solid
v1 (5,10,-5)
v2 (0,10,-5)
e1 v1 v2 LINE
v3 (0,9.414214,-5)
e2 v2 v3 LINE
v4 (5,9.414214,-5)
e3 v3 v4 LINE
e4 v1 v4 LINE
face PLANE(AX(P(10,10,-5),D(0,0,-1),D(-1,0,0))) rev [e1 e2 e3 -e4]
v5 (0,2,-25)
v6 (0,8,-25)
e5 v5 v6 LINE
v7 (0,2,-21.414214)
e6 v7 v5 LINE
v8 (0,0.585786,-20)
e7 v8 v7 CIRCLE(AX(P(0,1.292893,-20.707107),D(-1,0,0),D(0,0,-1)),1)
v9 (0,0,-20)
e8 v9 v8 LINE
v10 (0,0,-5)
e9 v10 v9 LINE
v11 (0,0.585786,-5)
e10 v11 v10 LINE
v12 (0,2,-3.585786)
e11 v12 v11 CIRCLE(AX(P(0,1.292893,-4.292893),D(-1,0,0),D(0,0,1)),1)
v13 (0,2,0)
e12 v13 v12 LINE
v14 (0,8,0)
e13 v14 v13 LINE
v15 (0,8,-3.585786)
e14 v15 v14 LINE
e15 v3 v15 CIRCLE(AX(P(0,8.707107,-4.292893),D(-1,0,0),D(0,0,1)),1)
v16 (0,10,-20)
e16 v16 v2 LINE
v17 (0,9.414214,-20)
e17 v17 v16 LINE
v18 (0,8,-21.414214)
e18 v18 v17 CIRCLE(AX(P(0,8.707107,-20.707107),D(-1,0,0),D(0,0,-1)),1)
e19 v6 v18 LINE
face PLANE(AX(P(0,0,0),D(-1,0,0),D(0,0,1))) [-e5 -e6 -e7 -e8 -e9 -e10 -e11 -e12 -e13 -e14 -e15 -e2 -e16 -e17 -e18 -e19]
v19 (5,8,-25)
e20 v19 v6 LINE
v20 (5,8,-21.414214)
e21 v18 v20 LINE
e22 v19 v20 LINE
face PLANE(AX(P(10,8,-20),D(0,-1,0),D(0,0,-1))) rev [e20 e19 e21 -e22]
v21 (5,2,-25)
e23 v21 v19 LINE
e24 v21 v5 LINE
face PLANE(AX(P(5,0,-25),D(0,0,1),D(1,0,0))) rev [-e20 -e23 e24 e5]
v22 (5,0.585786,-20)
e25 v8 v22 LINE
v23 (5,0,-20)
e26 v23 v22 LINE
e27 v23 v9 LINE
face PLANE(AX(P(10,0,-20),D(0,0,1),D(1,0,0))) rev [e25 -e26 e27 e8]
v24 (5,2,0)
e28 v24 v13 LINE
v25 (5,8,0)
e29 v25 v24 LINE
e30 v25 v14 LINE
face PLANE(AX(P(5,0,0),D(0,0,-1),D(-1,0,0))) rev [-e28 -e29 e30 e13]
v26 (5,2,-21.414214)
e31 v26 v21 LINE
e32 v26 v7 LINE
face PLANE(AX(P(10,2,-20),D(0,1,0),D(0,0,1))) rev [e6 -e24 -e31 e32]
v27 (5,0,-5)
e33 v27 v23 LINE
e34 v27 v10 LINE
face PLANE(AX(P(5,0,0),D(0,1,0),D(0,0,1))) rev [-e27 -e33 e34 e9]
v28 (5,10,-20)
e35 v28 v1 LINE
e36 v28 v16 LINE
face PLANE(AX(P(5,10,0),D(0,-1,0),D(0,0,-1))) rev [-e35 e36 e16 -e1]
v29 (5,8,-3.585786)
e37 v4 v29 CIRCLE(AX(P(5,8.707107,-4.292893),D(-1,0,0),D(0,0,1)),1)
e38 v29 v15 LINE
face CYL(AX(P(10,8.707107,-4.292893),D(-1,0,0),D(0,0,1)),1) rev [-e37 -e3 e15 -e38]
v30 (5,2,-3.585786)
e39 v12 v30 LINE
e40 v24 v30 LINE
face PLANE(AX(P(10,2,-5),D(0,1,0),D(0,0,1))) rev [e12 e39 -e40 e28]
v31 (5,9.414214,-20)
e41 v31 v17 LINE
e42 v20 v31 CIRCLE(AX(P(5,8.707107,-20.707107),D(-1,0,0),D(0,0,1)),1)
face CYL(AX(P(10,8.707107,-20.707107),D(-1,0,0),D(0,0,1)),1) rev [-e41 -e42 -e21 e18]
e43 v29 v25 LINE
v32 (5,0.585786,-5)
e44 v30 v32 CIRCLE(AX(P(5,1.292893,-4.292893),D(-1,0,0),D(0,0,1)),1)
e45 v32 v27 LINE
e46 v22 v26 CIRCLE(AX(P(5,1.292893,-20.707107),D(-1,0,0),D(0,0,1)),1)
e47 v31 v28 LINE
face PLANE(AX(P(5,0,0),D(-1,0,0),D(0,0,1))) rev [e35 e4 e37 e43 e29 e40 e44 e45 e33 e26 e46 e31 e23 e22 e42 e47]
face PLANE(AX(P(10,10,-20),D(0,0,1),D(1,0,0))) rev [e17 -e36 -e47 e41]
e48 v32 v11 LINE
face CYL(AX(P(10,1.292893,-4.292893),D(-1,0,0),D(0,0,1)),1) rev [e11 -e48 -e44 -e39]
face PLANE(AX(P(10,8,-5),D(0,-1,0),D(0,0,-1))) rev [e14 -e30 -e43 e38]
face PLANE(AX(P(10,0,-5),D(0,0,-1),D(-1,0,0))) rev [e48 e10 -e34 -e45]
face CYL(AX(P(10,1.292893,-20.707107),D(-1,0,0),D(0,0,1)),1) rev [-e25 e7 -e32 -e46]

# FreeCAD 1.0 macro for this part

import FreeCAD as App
import Part
import Sketcher

V = App.Vector
Q = App.Units.Quantity

doc = App.newDocument("Part")
params = doc.addObject("Spreadsheet::Sheet", "Params")
for row, (alias, value) in enumerate([
    ("sketch1_width", "10 mm"),
    ("sketch1_height", "25 mm"),
    ("pad1_length", "5 mm"),
    ("sketch2_width", "2 mm"),
    ("sketch2_height", "5 mm"),
    ("pocket1_length", "10 mm"),
    ("sketch3_diameter", "2 mm"),
    ("pocket2_length", "10 mm"),
], start=1):
    params.set(f"A{row}", alias)
    params.set(f"B{row}", "=" + value)
    params.setAlias(f"B{row}", alias)

body = doc.addObject("PartDesign::Body", "Body")

# Sketch on YZ plane
sketch1 = body.newObject("Sketcher::SketchObject", "Sketch")
sketch1.AttachmentSupport = (doc.getObject("YZ_Plane"), [""])
sketch1.MapMode = "FlatFace"
sketch1.addGeometry(Part.LineSegment(V(10, 0, 0), V(0, 0, 0)), False)
sketch1.addGeometry(Part.LineSegment(V(0, 0, 0), V(0, -25, 0)), False)
sketch1.addGeometry(Part.LineSegment(V(0, -25, 0), V(10, -25, 0)), False)
sketch1.addGeometry(Part.LineSegment(V(10, -25, 0), V(10, 0, 0)), False)
sketch1.addConstraint(Sketcher.Constraint("Coincident", 0, 2, 1, 1))
sketch1.addConstraint(Sketcher.Constraint("Coincident", 1, 2, 2, 1))
sketch1.addConstraint(Sketcher.Constraint("Coincident", 2, 2, 3, 1))
sketch1.addConstraint(Sketcher.Constraint("Coincident", 3, 2, 0, 1))
sketch1.addConstraint(Sketcher.Constraint("Horizontal", 0))
sketch1.addConstraint(Sketcher.Constraint("Vertical", 1))
sketch1.addConstraint(Sketcher.Constraint("Horizontal", 2))
sketch1.addConstraint(Sketcher.Constraint("Vertical", 3))
sketch1.addConstraint(Sketcher.Constraint("Coincident", 0, 2, -1, 1))
sketch1.addConstraint(Sketcher.Constraint("DistanceX", 0, 2, 0, 1, Q("10 mm")))
sketch1.addConstraint(Sketcher.Constraint("DistanceY", 1, 2, 1, 1, Q("25 mm")))
sketch1.setExpression("Constraints[9]", "Params.sketch1_width")
sketch1.setExpression("Constraints[10]", "Params.sketch1_height")
pad1 = body.newObject("PartDesign::Pad", "Pad")
pad1.Profile = sketch1
pad1.setExpression("Length", "Params.pad1_length")

# Sketch on YZ plane
sketch2 = body.newObject("Sketcher::SketchObject", "Sketch001")
sketch2.AttachmentSupport = (doc.getObject("YZ_Plane"), [""])
sketch2.MapMode = "FlatFace"
sketch2.addGeometry(Part.LineSegment(V(2, -5, 0), V(0, -5, 0)), False)
sketch2.addGeometry(Part.LineSegment(V(0, -5, 0), V(0, 0, 0)), False)
sketch2.addGeometry(Part.LineSegment(V(0, 0, 0), V(2, 0, 0)), False)
sketch2.addGeometry(Part.LineSegment(V(2, 0, 0), V(2, -5, 0)), False)
sketch2.addGeometry(Part.LineSegment(V(10, -5, 0), V(8, -5, 0)), False)
sketch2.addGeometry(Part.LineSegment(V(8, -5, 0), V(8, 0, 0)), False)
sketch2.addGeometry(Part.LineSegment(V(8, 0, 0), V(10, 0, 0)), False)
sketch2.addGeometry(Part.LineSegment(V(10, 0, 0), V(10, -5, 0)), False)
sketch2.addGeometry(Part.LineSegment(V(10, -25, 0), V(8, -25, 0)), False)
sketch2.addGeometry(Part.LineSegment(V(8, -25, 0), V(8, -20, 0)), False)
sketch2.addGeometry(Part.LineSegment(V(8, -20, 0), V(10, -20, 0)), False)
sketch2.addGeometry(Part.LineSegment(V(10, -20, 0), V(10, -25, 0)), False)
sketch2.addGeometry(Part.LineSegment(V(2, -25, 0), V(0, -25, 0)), False)
sketch2.addGeometry(Part.LineSegment(V(0, -25, 0), V(0, -20, 0)), False)
sketch2.addGeometry(Part.LineSegment(V(0, -20, 0), V(2, -20, 0)), False)
sketch2.addGeometry(Part.LineSegment(V(2, -20, 0), V(2, -25, 0)), False)
sketch2.addConstraint(Sketcher.Constraint("Coincident", 0, 2, 1, 1))
sketch2.addConstraint(Sketcher.Constraint("Coincident", 1, 2, 2, 1))
sketch2.addConstraint(Sketcher.Constraint("Coincident", 2, 2, 3, 1))
sketch2.addConstraint(Sketcher.Constraint("Coincident", 3, 2, 0, 1))
sketch2.addConstraint(Sketcher.Constraint("Coincident", 4, 2, 5, 1))
sketch2.addConstraint(Sketcher.Constraint("Coincident", 5, 2, 6, 1))
sketch2.addConstraint(Sketcher.Constraint("Coincident", 6, 2, 7, 1))
sketch2.addConstraint(Sketcher.Constraint("Coincident", 7, 2, 4, 1))
sketch2.addConstraint(Sketcher.Constraint("Coincident", 8, 2, 9, 1))
sketch2.addConstraint(Sketcher.Constraint("Coincident", 9, 2, 10, 1))
sketch2.addConstraint(Sketcher.Constraint("Coincident", 10, 2, 11, 1))
sketch2.addConstraint(Sketcher.Constraint("Coincident", 11, 2, 8, 1))
sketch2.addConstraint(Sketcher.Constraint("Coincident", 12, 2, 13, 1))
sketch2.addConstraint(Sketcher.Constraint("Coincident", 13, 2, 14, 1))
sketch2.addConstraint(Sketcher.Constraint("Coincident", 14, 2, 15, 1))
sketch2.addConstraint(Sketcher.Constraint("Coincident", 15, 2, 12, 1))
sketch2.addConstraint(Sketcher.Constraint("Horizontal", 0))
sketch2.addConstraint(Sketcher.Constraint("Vertical", 1))
sketch2.addConstraint(Sketcher.Constraint("Horizontal", 2))
sketch2.addConstraint(Sketcher.Constraint("Vertical", 3))
sketch2.addConstraint(Sketcher.Constraint("Horizontal", 4))
sketch2.addConstraint(Sketcher.Constraint("Vertical", 5))
sketch2.addConstraint(Sketcher.Constraint("Horizontal", 6))
sketch2.addConstraint(Sketcher.Constraint("Vertical", 7))
sketch2.addConstraint(Sketcher.Constraint("Horizontal", 8))
sketch2.addConstraint(Sketcher.Constraint("Vertical", 9))
sketch2.addConstraint(Sketcher.Constraint("Horizontal", 10))
sketch2.addConstraint(Sketcher.Constraint("Vertical", 11))
sketch2.addConstraint(Sketcher.Constraint("Horizontal", 12))
sketch2.addConstraint(Sketcher.Constraint("Vertical", 13))
sketch2.addConstraint(Sketcher.Constraint("Horizontal", 14))
sketch2.addConstraint(Sketcher.Constraint("Vertical", 15))
sketch2.addConstraint(Sketcher.Constraint("Coincident", 1, 2, -1, 1))
sketch2.addConstraint(Sketcher.Constraint("PointOnObject", 5, 2, -1))
sketch2.addConstraint(Sketcher.Constraint("PointOnObject", 12, 2, -2))
sketch2.addConstraint(Sketcher.Constraint("Horizontal", 3, 2, 4, 2))
sketch2.addConstraint(Sketcher.Constraint("Horizontal", 11, 2, 12, 2))
sketch2.addConstraint(Sketcher.Constraint("Horizontal", 10, 2, 13, 2))
sketch2.addConstraint(Sketcher.Constraint("Vertical", 5, 2, 8, 2))
sketch2.addConstraint(Sketcher.Constraint("Vertical", 7, 2, 10, 2))
sketch2.addConstraint(Sketcher.Constraint("Vertical", 3, 2, 14, 2))
sketch2.addConstraint(Sketcher.Constraint("Equal", 2, 4))
sketch2.addConstraint(Sketcher.Constraint("Equal", 7, 9))
sketch2.addConstraint(Sketcher.Constraint("DistanceX", 0, 2, 0, 1, Q("2 mm")))
sketch2.addConstraint(Sketcher.Constraint("DistanceY", 1, 1, 1, 2, Q("5 mm")))
sketch2.addConstraint(Sketcher.Constraint("DistanceX", -1, 1, 4, 2, Q("8 mm")))
sketch2.addConstraint(Sketcher.Constraint("DistanceY", 8, 2, -1, 1, Q("25 mm")))
sketch2.setExpression("Constraints[43]", "Params.sketch2_width")
sketch2.setExpression("Constraints[44]", "Params.sketch2_height")
pocket1 = body.newObject("PartDesign::Pocket", "Pocket")
pocket1.Profile = sketch2
pocket1.setExpression("Length", "Params.pocket1_length")
pocket1.Reversed = True

# Sketch on YZ plane
sketch3 = body.newObject("Sketcher::SketchObject", "Sketch002")
sketch3.AttachmentSupport = (doc.getObject("YZ_Plane"), [""])
sketch3.MapMode = "FlatFace"
sketch3.addGeometry(Part.Circle(V(8.7, -4.3, 0), V(0, 0, 1), 1), False)
sketch3.addGeometry(Part.Circle(V(1.3, -4.3, 0), V(0, 0, 1), 1), False)
sketch3.addGeometry(Part.Circle(V(1.3, -20.7, 0), V(0, 0, 1), 1), False)
sketch3.addGeometry(Part.Circle(V(8.7, -20.7, 0), V(0, 0, 1), 1), False)
sketch3.addConstraint(Sketcher.Constraint("Equal", 0, 1))
sketch3.addConstraint(Sketcher.Constraint("Equal", 1, 2))
sketch3.addConstraint(Sketcher.Constraint("Equal", 2, 3))
sketch3.addConstraint(Sketcher.Constraint("Horizontal", 0, 3, 1, 3))
sketch3.addConstraint(Sketcher.Constraint("Horizontal", 2, 3, 3, 3))
sketch3.addConstraint(Sketcher.Constraint("Vertical", 1, 3, 2, 3))
sketch3.addConstraint(Sketcher.Constraint("Vertical", 0, 3, 3, 3))
sketch3.addConstraint(Sketcher.Constraint("Diameter", 0, Q("2 mm")))
sketch3.addConstraint(Sketcher.Constraint("DistanceX", -1, 1, 0, 3, Q("8.707107 mm")))
sketch3.addConstraint(Sketcher.Constraint("DistanceY", 0, 3, -1, 1, Q("4.292893 mm")))
sketch3.addConstraint(Sketcher.Constraint("DistanceX", -1, 1, 1, 3, Q("1.292893 mm")))
sketch3.addConstraint(Sketcher.Constraint("DistanceY", 2, 3, -1, 1, Q("20.707107 mm")))
sketch3.setExpression("Constraints[7]", "Params.sketch3_diameter")
pocket2 = body.newObject("PartDesign::Pocket", "Pocket001")
pocket2.Profile = sketch3
pocket2.setExpression("Length", "Params.pocket2_length")
pocket2.Reversed = True

doc.recompute()
